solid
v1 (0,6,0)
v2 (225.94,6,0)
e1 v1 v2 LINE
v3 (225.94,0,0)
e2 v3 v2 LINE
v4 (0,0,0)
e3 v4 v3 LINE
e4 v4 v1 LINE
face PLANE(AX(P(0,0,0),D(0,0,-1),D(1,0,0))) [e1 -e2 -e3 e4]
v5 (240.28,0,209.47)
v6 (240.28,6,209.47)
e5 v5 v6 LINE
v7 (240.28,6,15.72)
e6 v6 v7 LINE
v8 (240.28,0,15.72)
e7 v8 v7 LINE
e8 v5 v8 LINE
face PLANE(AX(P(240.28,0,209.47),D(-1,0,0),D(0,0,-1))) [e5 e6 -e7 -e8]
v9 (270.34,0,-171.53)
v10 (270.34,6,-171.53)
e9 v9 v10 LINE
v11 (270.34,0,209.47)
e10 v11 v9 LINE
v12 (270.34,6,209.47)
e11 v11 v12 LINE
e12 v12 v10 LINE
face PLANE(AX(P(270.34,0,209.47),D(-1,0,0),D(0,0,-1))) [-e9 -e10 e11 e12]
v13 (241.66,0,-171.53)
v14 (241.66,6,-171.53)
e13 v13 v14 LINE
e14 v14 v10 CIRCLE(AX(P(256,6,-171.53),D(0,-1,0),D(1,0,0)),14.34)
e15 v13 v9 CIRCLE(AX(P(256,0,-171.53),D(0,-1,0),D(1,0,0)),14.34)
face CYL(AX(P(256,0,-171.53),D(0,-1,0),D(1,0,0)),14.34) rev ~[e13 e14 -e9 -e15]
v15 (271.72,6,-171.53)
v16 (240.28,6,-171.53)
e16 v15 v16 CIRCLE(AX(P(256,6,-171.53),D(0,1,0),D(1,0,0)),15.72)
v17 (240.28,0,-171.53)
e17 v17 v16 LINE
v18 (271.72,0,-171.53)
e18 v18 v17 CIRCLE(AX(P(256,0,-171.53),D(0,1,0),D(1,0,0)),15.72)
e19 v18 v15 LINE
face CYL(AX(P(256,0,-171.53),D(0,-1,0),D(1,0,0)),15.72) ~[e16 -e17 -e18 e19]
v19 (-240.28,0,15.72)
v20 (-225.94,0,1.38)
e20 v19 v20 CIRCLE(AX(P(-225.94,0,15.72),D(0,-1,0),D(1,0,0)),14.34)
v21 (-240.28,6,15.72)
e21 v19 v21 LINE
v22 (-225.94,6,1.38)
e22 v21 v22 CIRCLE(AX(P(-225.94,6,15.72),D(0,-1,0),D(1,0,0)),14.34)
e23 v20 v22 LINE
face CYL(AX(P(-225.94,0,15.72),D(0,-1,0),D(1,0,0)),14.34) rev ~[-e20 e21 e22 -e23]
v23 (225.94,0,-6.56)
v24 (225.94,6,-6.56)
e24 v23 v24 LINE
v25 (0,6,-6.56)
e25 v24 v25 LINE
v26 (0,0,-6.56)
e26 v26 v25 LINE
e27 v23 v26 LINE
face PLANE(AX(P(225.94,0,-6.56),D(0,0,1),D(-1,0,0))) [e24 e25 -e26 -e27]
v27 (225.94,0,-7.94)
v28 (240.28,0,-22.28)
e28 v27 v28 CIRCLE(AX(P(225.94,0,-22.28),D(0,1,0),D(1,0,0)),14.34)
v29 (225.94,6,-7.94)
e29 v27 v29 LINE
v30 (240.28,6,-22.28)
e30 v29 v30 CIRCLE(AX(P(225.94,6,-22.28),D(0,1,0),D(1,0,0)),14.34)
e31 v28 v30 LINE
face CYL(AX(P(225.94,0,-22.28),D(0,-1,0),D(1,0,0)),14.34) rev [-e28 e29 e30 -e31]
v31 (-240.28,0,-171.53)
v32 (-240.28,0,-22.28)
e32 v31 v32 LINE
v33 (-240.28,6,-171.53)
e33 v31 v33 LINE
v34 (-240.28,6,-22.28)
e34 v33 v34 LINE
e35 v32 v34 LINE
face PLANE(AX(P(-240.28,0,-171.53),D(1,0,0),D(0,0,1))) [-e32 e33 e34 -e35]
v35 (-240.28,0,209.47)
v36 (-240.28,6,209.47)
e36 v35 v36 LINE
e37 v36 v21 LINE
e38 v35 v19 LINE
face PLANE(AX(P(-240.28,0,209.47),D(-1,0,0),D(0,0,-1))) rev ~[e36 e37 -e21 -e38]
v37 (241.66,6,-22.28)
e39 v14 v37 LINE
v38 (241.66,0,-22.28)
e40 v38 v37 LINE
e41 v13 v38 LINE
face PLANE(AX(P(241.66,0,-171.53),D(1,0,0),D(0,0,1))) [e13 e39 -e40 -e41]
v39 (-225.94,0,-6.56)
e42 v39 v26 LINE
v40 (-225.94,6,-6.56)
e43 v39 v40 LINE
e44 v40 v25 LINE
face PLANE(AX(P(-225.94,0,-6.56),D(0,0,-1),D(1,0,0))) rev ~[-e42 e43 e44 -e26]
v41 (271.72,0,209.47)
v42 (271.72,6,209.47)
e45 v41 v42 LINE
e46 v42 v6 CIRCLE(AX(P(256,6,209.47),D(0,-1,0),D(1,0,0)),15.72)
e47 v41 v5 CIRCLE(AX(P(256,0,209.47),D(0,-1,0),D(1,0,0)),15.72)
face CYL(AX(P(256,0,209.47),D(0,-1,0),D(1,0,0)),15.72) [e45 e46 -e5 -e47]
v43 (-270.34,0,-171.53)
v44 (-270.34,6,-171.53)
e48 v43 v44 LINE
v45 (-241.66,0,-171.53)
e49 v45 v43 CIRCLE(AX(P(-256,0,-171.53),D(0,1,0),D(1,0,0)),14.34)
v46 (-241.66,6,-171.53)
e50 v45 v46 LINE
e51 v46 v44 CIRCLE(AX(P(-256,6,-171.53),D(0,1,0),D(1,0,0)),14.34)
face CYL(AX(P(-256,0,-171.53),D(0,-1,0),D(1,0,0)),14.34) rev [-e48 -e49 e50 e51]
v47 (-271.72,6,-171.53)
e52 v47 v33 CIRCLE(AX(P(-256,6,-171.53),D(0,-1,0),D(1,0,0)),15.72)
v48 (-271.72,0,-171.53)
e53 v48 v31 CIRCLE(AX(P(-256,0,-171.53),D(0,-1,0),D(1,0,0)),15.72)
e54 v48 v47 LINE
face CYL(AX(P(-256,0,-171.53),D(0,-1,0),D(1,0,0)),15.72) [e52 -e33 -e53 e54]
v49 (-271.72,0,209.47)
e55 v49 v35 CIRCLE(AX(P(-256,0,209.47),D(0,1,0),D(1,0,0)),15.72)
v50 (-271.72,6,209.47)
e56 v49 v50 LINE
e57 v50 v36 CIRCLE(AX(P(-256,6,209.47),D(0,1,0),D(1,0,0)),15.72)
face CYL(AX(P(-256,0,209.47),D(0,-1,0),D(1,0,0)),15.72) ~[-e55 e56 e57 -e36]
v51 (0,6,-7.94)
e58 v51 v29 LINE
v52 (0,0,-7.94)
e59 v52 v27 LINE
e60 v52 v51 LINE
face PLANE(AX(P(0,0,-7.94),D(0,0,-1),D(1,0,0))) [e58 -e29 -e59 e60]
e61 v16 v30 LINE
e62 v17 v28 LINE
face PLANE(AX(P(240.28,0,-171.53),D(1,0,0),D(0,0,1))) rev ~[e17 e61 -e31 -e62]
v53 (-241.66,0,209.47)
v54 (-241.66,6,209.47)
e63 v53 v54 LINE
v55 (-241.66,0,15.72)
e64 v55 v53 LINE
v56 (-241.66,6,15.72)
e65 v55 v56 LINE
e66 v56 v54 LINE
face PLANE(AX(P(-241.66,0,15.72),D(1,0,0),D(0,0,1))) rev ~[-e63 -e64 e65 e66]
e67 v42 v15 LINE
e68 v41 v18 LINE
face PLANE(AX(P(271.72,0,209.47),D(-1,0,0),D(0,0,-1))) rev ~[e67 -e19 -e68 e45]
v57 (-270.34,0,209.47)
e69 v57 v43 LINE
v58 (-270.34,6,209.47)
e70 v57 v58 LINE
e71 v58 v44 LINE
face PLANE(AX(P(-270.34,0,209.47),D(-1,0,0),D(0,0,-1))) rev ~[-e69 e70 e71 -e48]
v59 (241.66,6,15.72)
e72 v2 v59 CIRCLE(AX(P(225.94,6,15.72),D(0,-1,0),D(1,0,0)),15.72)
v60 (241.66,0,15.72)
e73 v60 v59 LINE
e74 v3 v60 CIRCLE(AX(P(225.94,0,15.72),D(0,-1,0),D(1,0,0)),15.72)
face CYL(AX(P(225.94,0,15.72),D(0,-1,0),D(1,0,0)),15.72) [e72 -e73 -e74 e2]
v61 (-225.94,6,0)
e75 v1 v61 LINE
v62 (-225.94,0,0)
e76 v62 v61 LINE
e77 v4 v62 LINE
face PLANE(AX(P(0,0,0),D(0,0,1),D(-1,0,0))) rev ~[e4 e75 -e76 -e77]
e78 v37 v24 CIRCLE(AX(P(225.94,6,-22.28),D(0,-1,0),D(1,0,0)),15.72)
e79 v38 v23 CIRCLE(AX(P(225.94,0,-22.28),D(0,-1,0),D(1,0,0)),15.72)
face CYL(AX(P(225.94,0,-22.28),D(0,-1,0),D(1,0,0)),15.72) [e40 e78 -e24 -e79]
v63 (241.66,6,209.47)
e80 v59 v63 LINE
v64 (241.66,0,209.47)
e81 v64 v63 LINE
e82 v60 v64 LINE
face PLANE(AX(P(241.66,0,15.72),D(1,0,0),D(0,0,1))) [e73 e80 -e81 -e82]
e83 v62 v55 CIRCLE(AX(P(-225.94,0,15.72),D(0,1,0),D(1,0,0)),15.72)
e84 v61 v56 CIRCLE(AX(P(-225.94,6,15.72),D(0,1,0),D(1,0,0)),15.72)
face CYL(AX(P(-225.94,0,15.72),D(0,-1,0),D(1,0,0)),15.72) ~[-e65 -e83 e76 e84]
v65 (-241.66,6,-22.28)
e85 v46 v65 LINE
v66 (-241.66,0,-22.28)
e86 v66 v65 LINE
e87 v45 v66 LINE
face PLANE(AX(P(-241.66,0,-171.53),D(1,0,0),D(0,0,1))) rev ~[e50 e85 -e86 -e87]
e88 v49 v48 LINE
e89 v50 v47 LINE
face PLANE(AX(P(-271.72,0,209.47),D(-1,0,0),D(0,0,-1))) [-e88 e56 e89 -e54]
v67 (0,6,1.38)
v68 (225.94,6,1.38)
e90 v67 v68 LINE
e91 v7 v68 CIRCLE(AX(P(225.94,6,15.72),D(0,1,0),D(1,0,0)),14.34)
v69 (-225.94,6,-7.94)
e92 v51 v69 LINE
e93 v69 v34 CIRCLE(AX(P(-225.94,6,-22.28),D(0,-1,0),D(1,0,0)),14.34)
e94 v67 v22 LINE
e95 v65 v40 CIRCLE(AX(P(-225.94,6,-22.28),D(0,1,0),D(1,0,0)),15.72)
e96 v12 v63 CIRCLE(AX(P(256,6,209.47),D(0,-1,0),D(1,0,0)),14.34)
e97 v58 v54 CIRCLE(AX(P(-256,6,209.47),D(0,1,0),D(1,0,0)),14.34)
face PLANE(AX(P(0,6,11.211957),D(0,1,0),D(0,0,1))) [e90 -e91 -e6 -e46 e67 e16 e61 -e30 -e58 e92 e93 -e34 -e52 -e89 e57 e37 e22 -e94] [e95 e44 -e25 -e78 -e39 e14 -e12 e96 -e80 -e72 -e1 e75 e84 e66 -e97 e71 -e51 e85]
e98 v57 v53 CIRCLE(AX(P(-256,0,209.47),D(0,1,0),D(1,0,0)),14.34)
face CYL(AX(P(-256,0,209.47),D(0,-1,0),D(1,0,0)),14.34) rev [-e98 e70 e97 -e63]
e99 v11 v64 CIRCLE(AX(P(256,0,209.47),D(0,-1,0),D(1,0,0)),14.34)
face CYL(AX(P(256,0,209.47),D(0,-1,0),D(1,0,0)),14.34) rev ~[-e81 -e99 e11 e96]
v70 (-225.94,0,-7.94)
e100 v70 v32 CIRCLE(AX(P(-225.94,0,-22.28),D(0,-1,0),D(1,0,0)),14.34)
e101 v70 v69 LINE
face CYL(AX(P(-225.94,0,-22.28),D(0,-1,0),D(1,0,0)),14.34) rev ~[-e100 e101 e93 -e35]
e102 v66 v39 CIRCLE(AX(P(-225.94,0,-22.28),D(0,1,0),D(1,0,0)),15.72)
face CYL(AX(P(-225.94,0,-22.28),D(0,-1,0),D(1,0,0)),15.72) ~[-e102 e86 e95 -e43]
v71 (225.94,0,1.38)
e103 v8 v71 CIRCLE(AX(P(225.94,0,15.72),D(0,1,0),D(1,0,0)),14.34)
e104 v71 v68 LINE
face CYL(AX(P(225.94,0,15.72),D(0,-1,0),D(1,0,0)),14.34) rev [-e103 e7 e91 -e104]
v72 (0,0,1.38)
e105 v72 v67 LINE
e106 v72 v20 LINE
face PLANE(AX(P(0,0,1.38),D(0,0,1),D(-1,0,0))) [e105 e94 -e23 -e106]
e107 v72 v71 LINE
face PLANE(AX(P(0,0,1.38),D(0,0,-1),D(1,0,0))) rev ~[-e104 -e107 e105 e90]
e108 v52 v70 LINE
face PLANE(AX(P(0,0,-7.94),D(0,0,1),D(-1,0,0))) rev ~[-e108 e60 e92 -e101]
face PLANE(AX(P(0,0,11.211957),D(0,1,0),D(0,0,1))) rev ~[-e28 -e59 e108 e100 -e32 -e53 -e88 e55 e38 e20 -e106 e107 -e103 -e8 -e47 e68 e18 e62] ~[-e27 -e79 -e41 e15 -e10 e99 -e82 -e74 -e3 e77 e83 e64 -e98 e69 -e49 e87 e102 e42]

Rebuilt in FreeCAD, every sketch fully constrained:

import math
import FreeCAD as App
import Part
import Sketcher

V = App.Vector
Q = App.Units.Quantity

doc = App.newDocument("Part")
body = doc.addObject("PartDesign::Body", "Body")

sketch1 = body.newObject("Sketcher::SketchObject", "Sketch")
sketch1.AttachmentSupport = (doc.getObject("XZ_Plane"), [""])
sketch1.MapMode = "FlatFace"
sketch1.addGeometry([
    Part.LineSegment(V(-225.94, -7.94, 0), V(225.94, -7.94, 0)),
    Part.ArcOfCircle(Part.Circle(V(225.94, -22.28, 0), V(0, 0, 1), 14.34), math.radians(0), math.radians(90)),
    Part.LineSegment(V(240.28, -22.28, 0), V(240.28, -171.53, 0)),
    Part.ArcOfCircle(Part.Circle(V(256, -171.53, 0), V(0, 0, 1), 15.72), math.radians(180), math.radians(360)),
    Part.LineSegment(V(271.72, -171.53, 0), V(271.72, 209.47, 0)),
    Part.ArcOfCircle(Part.Circle(V(256, 209.47, 0), V(0, 0, 1), 15.72), math.radians(0), math.radians(180)),
    Part.LineSegment(V(240.28, 209.47, 0), V(240.28, 15.72, 0)),
    Part.ArcOfCircle(Part.Circle(V(225.94, 15.72, 0), V(0, 0, 1), 14.34), math.radians(-90), math.radians(0)),
    Part.LineSegment(V(225.94, 1.38, 0), V(-225.94, 1.38, 0)),
    Part.ArcOfCircle(Part.Circle(V(-225.94, 15.72, 0), V(0, 0, 1), 14.34), math.radians(180), math.radians(270)),
    Part.LineSegment(V(-240.28, 15.72, 0), V(-240.28, 209.47, 0)),
    Part.ArcOfCircle(Part.Circle(V(-256, 209.47, 0), V(0, 0, 1), 15.72), math.radians(0), math.radians(180)),
    Part.LineSegment(V(-271.72, 209.47, 0), V(-271.72, -171.53, 0)),
    Part.ArcOfCircle(Part.Circle(V(-256, -171.53, 0), V(0, 0, 1), 15.72), math.radians(180), math.radians(360)),
    Part.LineSegment(V(-240.28, -171.53, 0), V(-240.28, -22.28, 0)),
    Part.ArcOfCircle(Part.Circle(V(-225.94, -22.28, 0), V(0, 0, 1), 14.34), math.radians(90), math.radians(180)),
    Part.LineSegment(V(-241.66, 209.47, 0), V(-241.66, 15.72, 0)),
    Part.ArcOfCircle(Part.Circle(V(-225.94, 15.72, 0), V(0, 0, 1), 15.72), math.radians(180), math.radians(270)),
    Part.LineSegment(V(-225.94, 0, 0), V(225.94, 0, 0)),
    Part.ArcOfCircle(Part.Circle(V(225.94, 15.72, 0), V(0, 0, 1), 15.72), math.radians(-90), math.radians(0)),
    Part.LineSegment(V(241.66, 15.72, 0), V(241.66, 209.47, 0)),
    Part.ArcOfCircle(Part.Circle(V(256, 209.47, 0), V(0, 0, 1), 14.34), math.radians(0), math.radians(180)),
    Part.LineSegment(V(270.34, 209.47, 0), V(270.34, -171.53, 0)),
    Part.ArcOfCircle(Part.Circle(V(256, -171.53, 0), V(0, 0, 1), 14.34), math.radians(180), math.radians(360)),
    Part.LineSegment(V(241.66, -171.53, 0), V(241.66, -22.28, 0)),
    Part.ArcOfCircle(Part.Circle(V(225.94, -22.28, 0), V(0, 0, 1), 15.72), math.radians(0), math.radians(90)),
    Part.LineSegment(V(225.94, -6.56, 0), V(-225.94, -6.56, 0)),
    Part.ArcOfCircle(Part.Circle(V(-225.94, -22.28, 0), V(0, 0, 1), 15.72), math.radians(90), math.radians(180)),
    Part.LineSegment(V(-241.66, -22.28, 0), V(-241.66, -171.53, 0)),
    Part.ArcOfCircle(Part.Circle(V(-256, -171.53, 0), V(0, 0, 1), 14.34), math.radians(180), math.radians(360)),
    Part.LineSegment(V(-270.34, -171.53, 0), V(-270.34, 209.47, 0)),
    Part.ArcOfCircle(Part.Circle(V(-256, 209.47, 0), V(0, 0, 1), 14.34), math.radians(0), math.radians(180)),
], False)
sketch1.addConstraint([
    Sketcher.Constraint("Tangent", 0, 2, 1, 2),
    Sketcher.Constraint("Tangent", 1, 1, 2, 1),
    Sketcher.Constraint("Tangent", 2, 2, 3, 1),
    Sketcher.Constraint("Tangent", 3, 2, 4, 1),
    Sketcher.Constraint("Tangent", 4, 2, 5, 1),
    Sketcher.Constraint("Tangent", 5, 2, 6, 1),
    Sketcher.Constraint("Tangent", 6, 2, 7, 2),
    Sketcher.Constraint("Tangent", 7, 1, 8, 1),
    Sketcher.Constraint("Tangent", 8, 2, 9, 2),
    Sketcher.Constraint("Tangent", 9, 1, 10, 1),
    Sketcher.Constraint("Tangent", 10, 2, 11, 1),
    Sketcher.Constraint("Tangent", 11, 2, 12, 1),
    Sketcher.Constraint("Tangent", 12, 2, 13, 1),
    Sketcher.Constraint("Tangent", 13, 2, 14, 1),
    Sketcher.Constraint("Tangent", 14, 2, 15, 2),
    Sketcher.Constraint("Tangent", 15, 1, 0, 1),
    Sketcher.Constraint("Tangent", 16, 2, 17, 1),
    Sketcher.Constraint("Tangent", 17, 2, 18, 1),
    Sketcher.Constraint("Tangent", 18, 2, 19, 1),
    Sketcher.Constraint("Tangent", 19, 2, 20, 1),
    Sketcher.Constraint("Tangent", 20, 2, 21, 2),
    Sketcher.Constraint("Tangent", 21, 1, 22, 1),
    Sketcher.Constraint("Tangent", 22, 2, 23, 2),
    Sketcher.Constraint("Tangent", 23, 1, 24, 1),
    Sketcher.Constraint("Tangent", 24, 2, 25, 1),
    Sketcher.Constraint("Tangent", 25, 2, 26, 1),
    Sketcher.Constraint("Tangent", 26, 2, 27, 1),
    Sketcher.Constraint("Tangent", 27, 2, 28, 1),
    Sketcher.Constraint("Tangent", 28, 2, 29, 2),
    Sketcher.Constraint("Tangent", 29, 1, 30, 1),
    Sketcher.Constraint("Tangent", 30, 2, 31, 2),
    Sketcher.Constraint("Tangent", 31, 1, 16, 1),
    Sketcher.Constraint("Horizontal", 0),
    Sketcher.Constraint("Vertical", 2),
    Sketcher.Constraint("Vertical", 4),
    Sketcher.Constraint("Vertical", 6),
    Sketcher.Constraint("Horizontal", 8),
    Sketcher.Constraint("Vertical", 10),
    Sketcher.Constraint("Vertical", 12),
    Sketcher.Constraint("Vertical", 14),
    Sketcher.Constraint("Vertical", 16),
    Sketcher.Constraint("Horizontal", 18),
    Sketcher.Constraint("Vertical", 20),
    Sketcher.Constraint("Vertical", 22),
    Sketcher.Constraint("Vertical", 24),
    Sketcher.Constraint("Horizontal", 26),
    Sketcher.Constraint("Vertical", 28),
    Sketcher.Constraint("Vertical", 30),
    Sketcher.Constraint("Coincident", 17, 3, 9, 3),
    Sketcher.Constraint("Coincident", 19, 3, 7, 3),
    Sketcher.Constraint("Coincident", 21, 3, 5, 3),
    Sketcher.Constraint("Coincident", 23, 3, 3, 3),
    Sketcher.Constraint("Coincident", 25, 3, 1, 3),
    Sketcher.Constraint("Coincident", 27, 3, 15, 3),
    Sketcher.Constraint("Coincident", 29, 3, 13, 3),
    Sketcher.Constraint("Equal", 3, 5),
    Sketcher.Constraint("Equal", 1, 7),
    Sketcher.Constraint("Equal", 7, 9),
    Sketcher.Constraint("Equal", 5, 11),
    Sketcher.Constraint("Equal", 11, 13),
    Sketcher.Constraint("Equal", 9, 15),
    Sketcher.Constraint("Equal", 13, 17),
    Sketcher.Constraint("Symmetric", 17, 2, 18, 2, -1, 1),
    Sketcher.Constraint("Horizontal", 5, 3, 11, 3),
    Sketcher.Constraint("Horizontal", 3, 3, 13, 3),
    Sketcher.Constraint("Horizontal", 21, 3, 31, 3),
    Sketcher.Constraint("DistanceY", 4, 1, 4, 2, Q("381 mm")),
    Sketcher.Constraint("Radius", 1, Q("14.34 mm")),
    Sketcher.Constraint("Radius", 3, Q("15.72 mm")),
    Sketcher.Constraint("DistanceX", -1, 1, 3, 3, Q("256 mm")),
    Sketcher.Constraint("DistanceY", 1, 3, 7, 3, Q("38 mm")),
    Sketcher.Constraint("DistanceY", 2, 2, 2, 1, Q("149.25 mm")),
])
pad1 = body.newObject("PartDesign::Pad", "Pad")
pad1.Profile = sketch1
pad1.Length = 6
pad1.Reversed = True

doc.recompute()
